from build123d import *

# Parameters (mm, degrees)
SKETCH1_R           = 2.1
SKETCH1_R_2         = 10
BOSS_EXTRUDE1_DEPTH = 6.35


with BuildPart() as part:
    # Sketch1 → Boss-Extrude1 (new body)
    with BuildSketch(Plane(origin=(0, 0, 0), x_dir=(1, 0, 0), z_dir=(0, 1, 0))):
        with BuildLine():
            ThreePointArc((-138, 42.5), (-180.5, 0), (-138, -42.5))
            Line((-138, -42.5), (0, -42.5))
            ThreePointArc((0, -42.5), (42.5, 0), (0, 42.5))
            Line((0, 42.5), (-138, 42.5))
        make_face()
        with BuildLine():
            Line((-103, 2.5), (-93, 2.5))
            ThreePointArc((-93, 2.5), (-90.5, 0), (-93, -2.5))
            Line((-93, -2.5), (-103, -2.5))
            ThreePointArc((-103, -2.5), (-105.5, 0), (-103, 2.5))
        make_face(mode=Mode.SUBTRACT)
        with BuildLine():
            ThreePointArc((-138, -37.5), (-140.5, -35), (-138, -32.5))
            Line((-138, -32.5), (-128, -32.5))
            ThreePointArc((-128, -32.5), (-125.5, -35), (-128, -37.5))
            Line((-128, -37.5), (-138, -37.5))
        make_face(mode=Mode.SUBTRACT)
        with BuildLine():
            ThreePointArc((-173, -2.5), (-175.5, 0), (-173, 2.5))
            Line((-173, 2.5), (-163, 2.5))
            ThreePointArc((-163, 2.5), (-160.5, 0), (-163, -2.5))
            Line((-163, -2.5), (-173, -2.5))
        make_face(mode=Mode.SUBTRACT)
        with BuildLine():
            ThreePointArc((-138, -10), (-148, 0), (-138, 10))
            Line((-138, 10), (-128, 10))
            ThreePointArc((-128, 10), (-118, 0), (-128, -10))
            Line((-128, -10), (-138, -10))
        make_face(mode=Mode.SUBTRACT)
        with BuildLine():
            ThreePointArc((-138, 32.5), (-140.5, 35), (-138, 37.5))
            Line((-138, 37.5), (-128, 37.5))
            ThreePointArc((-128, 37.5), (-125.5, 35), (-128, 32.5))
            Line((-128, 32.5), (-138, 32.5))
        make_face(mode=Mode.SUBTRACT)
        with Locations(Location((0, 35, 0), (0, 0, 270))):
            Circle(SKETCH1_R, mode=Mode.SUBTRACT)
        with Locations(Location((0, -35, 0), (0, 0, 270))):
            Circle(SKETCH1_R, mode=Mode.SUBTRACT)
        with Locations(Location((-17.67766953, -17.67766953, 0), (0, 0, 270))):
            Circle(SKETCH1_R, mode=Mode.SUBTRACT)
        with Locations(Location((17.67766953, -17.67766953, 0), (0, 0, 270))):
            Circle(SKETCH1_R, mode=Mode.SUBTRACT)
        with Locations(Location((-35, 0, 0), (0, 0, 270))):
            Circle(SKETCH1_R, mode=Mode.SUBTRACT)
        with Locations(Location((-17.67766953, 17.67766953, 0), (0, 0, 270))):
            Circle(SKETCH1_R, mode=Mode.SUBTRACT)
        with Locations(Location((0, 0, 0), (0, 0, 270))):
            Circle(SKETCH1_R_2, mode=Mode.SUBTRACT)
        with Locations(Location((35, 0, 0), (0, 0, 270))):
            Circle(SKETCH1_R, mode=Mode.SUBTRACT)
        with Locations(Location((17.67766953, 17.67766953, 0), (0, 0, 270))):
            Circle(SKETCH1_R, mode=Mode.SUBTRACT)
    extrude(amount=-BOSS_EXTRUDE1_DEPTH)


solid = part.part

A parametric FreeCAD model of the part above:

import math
import FreeCAD as App
import Part
import Sketcher

V = App.Vector

doc = App.newDocument("Part")
params = doc.addObject("Spreadsheet::Sheet", "Params")
for row, (alias, value) in enumerate([
    ("sketch1_diameter", "20 mm"),
    ("sketch1_diameter2", "4.2 mm"),
    ("sketch1_radius", "42.5 mm"),
    ("sketch1_radius2", "2.5 mm"),
    ("sketch1_width", "138 mm"),
    ("pad1_length", "6.35 mm"),
], start=1):
    params.set(f"A{row}", alias)
    params.set(f"B{row}", "=" + value)
    params.setAlias(f"B{row}", alias)

body = doc.addObject("PartDesign::Body", "Body")

sketch1 = body.newObject("Sketcher::SketchObject", "Sketch")
sketch1.AttachmentSupport = (doc.getObject("XZ_Plane"), [""])
sketch1.MapMode = "FlatFace"
sketch1.addGeometry(Part.ArcOfCircle(Part.Circle(V(-138, 0, 0), V(0, 0, 1), 42.5), math.radians(90), math.radians(270)), False)
sketch1.addGeometry(Part.LineSegment(V(-138, 42.5, 0), V(0, 42.5, 0)), False)
sketch1.addGeometry(Part.ArcOfCircle(Part.Circle(V(0, 0, 0), V(0, 0, 1), 42.5), math.radians(-90), math.radians(90)), False)
sketch1.addGeometry(Part.LineSegment(V(0, -42.5, 0), V(-138, -42.5, 0)), False)
sketch1.addGeometry(Part.LineSegment(V(-128, 37.5, 0), V(-138, 37.5, 0)), False)
sketch1.addGeometry(Part.ArcOfCircle(Part.Circle(V(-138, 35, 0), V(0, 0, 1), 2.5), math.radians(90), math.radians(270)), False)
sketch1.addGeometry(Part.LineSegment(V(-138, 32.5, 0), V(-128, 32.5, 0)), False)
sketch1.addGeometry(Part.ArcOfCircle(Part.Circle(V(-128, 35, 0), V(0, 0, 1), 2.5), math.radians(-90), math.radians(90)), False)
sketch1.addGeometry(Part.Circle(V(0, 35, 0), V(0, 0, 1), 2.1), False)
sketch1.addGeometry(Part.Circle(V(-17.67767, 17.67767, 0), V(0, 0, 1), 2.1), False)
sketch1.addGeometry(Part.Circle(V(17.67767, 17.67767, 0), V(0, 0, 1), 2.1), False)
sketch1.addGeometry(Part.LineSegment(V(-163, 2.5, 0), V(-173, 2.5, 0)), False)
sketch1.addGeometry(Part.ArcOfCircle(Part.Circle(V(-173, 0, 0), V(0, 0, 1), 2.5), math.radians(90), math.radians(270)), False)
sketch1.addGeometry(Part.LineSegment(V(-173, -2.5, 0), V(-163, -2.5, 0)), False)
sketch1.addGeometry(Part.ArcOfCircle(Part.Circle(V(-163, 0, 0), V(0, 0, 1), 2.5), math.radians(-90), math.radians(90)), False)
sketch1.addGeometry(Part.LineSegment(V(-128, 10, 0), V(-138, 10, 0)), False)
sketch1.addGeometry(Part.ArcOfCircle(Part.Circle(V(-138, 0, 0), V(0, 0, 1), 10), math.radians(90), math.radians(270)), False)
sketch1.addGeometry(Part.LineSegment(V(-138, -10, 0), V(-128, -10, 0)), False)
sketch1.addGeometry(Part.ArcOfCircle(Part.Circle(V(-128, 0, 0), V(0, 0, 1), 10), math.radians(-90), math.radians(90)), False)
sketch1.addGeometry(Part.ArcOfCircle(Part.Circle(V(-103, 0, 0), V(0, 0, 1), 2.5), math.radians(90), math.radians(270)), False)
sketch1.addGeometry(Part.LineSegment(V(-103, -2.5, 0), V(-93, -2.5, 0)), False)
sketch1.addGeometry(Part.ArcOfCircle(Part.Circle(V(-93, 0, 0), V(0, 0, 1), 2.5), math.radians(-90), math.radians(90)), False)
sketch1.addGeometry(Part.LineSegment(V(-93, 2.5, 0), V(-103, 2.5, 0)), False)
sketch1.addGeometry(Part.LineSegment(V(-128, -32.5, 0), V(-138, -32.5, 0)), False)
sketch1.addGeometry(Part.ArcOfCircle(Part.Circle(V(-138, -35, 0), V(0, 0, 1), 2.5), math.radians(90), math.radians(270)), False)
sketch1.addGeometry(Part.LineSegment(V(-138, -37.5, 0), V(-128, -37.5, 0)), False)
sketch1.addGeometry(Part.ArcOfCircle(Part.Circle(V(-128, -35, 0), V(0, 0, 1), 2.5), math.radians(-90), math.radians(90)), False)
sketch1.addGeometry(Part.Circle(V(-35, 0, 0), V(0, 0, 1), 2.1), False)
sketch1.addGeometry(Part.Circle(V(-17.67767, -17.67767, 0), V(0, 0, 1), 2.1), False)
sketch1.addGeometry(Part.Circle(V(0, 0, 0), V(0, 0, 1), 10), False)
sketch1.addGeometry(Part.Circle(V(35, 0, 0), V(0, 0, 1), 2.1), False)
sketch1.addGeometry(Part.Circle(V(17.67767, -17.67767, 0), V(0, 0, 1), 2.1), False)
sketch1.addGeometry(Part.Circle(V(0, -35, 0), V(0, 0, 1), 2.1), False)
sketch1.addConstraint(Sketcher.Constraint("Tangent", 0, 1, 1, 1))
sketch1.addConstraint(Sketcher.Constraint("Tangent", 1, 2, 2, 2))
sketch1.addConstraint(Sketcher.Constraint("Tangent", 2, 1, 3, 1))
sketch1.addConstraint(Sketcher.Constraint("Tangent", 3, 2, 0, 2))
sketch1.addConstraint(Sketcher.Constraint("Tangent", 4, 2, 5, 1))
sketch1.addConstraint(Sketcher.Constraint("Tangent", 5, 2, 6, 1))
sketch1.addConstraint(Sketcher.Constraint("Tangent", 6, 2, 7, 1))
sketch1.addConstraint(Sketcher.Constraint("Tangent", 7, 2, 4, 1))
sketch1.addConstraint(Sketcher.Constraint("Tangent", 11, 2, 12, 1))
sketch1.addConstraint(Sketcher.Constraint("Tangent", 12, 2, 13, 1))
sketch1.addConstraint(Sketcher.Constraint("Tangent", 13, 2, 14, 1))
sketch1.addConstraint(Sketcher.Constraint("Tangent", 14, 2, 11, 1))
sketch1.addConstraint(Sketcher.Constraint("Tangent", 15, 2, 16, 1))
sketch1.addConstraint(Sketcher.Constraint("Tangent", 16, 2, 17, 1))
sketch1.addConstraint(Sketcher.Constraint("Tangent", 17, 2, 18, 1))
sketch1.addConstraint(Sketcher.Constraint("Tangent", 18, 2, 15, 1))
sketch1.addConstraint(Sketcher.Constraint("Tangent", 19, 2, 20, 1))
sketch1.addConstraint(Sketcher.Constraint("Tangent", 20, 2, 21, 1))
sketch1.addConstraint(Sketcher.Constraint("Tangent", 21, 2, 22, 1))
sketch1.addConstraint(Sketcher.Constraint("Tangent", 22, 2, 19, 1))
sketch1.addConstraint(Sketcher.Constraint("Tangent", 23, 2, 24, 1))
sketch1.addConstraint(Sketcher.Constraint("Tangent", 24, 2, 25, 1))
sketch1.addConstraint(Sketcher.Constraint("Tangent", 25, 2, 26, 1))
sketch1.addConstraint(Sketcher.Constraint("Tangent", 26, 2, 23, 1))
sketch1.addConstraint(Sketcher.Constraint("Horizontal", 1))
sketch1.addConstraint(Sketcher.Constraint("Horizontal", 3))
sketch1.addConstraint(Sketcher.Constraint("Horizontal", 4))
sketch1.addConstraint(Sketcher.Constraint("Horizontal", 6))
sketch1.addConstraint(Sketcher.Constraint("Horizontal", 11))
sketch1.addConstraint(Sketcher.Constraint("Horizontal", 13))
sketch1.addConstraint(Sketcher.Constraint("Horizontal", 15))
sketch1.addConstraint(Sketcher.Constraint("Horizontal", 17))
sketch1.addConstraint(Sketcher.Constraint("Horizontal", 20))
sketch1.addConstraint(Sketcher.Constraint("Horizontal", 22))
sketch1.addConstraint(Sketcher.Constraint("Horizontal", 23))
sketch1.addConstraint(Sketcher.Constraint("Horizontal", 25))
sketch1.addConstraint(Sketcher.Constraint("Coincident", 2, 3, -1, 1))
sketch1.addConstraint(Sketcher.Constraint("Coincident", 29, 3, -1, 1))
sketch1.addConstraint(Sketcher.Constraint("Coincident", 16, 3, 0, 3))
sketch1.addConstraint(Sketcher.Constraint("Equal", 8, 9))
sketch1.addConstraint(Sketcher.Constraint("Equal", 9, 10))
sketch1.addConstraint(Sketcher.Constraint("Equal", 7, 12))
sketch1.addConstraint(Sketcher.Constraint("Equal", 14, 19))
sketch1.addConstraint(Sketcher.Constraint("Equal", 21, 24))
sketch1.addConstraint(Sketcher.Constraint("Equal", 10, 27))
sketch1.addConstraint(Sketcher.Constraint("Equal", 27, 28))
sketch1.addConstraint(Sketcher.Constraint("Equal", 18, 29))
sketch1.addConstraint(Sketcher.Constraint("Equal", 28, 30))
sketch1.addConstraint(Sketcher.Constraint("Equal", 30, 31))
sketch1.addConstraint(Sketcher.Constraint("Equal", 31, 32))
sketch1.addConstraint(Sketcher.Constraint("Symmetric", 10, 3, 28, 3, -1, 1))
sketch1.addConstraint(Sketcher.Constraint("Symmetric", 27, 3, 30, 3, -1, 1))
sketch1.addConstraint(Sketcher.Constraint("Symmetric", 9, 3, 31, 3, -1, 1))
sketch1.addConstraint(Sketcher.Constraint("Symmetric", 8, 3, 32, 3, -1, 1))
sketch1.addConstraint(Sketcher.Constraint("Symmetric", 9, 3, 10, 3, -2))
sketch1.addConstraint(Sketcher.Constraint("Symmetric", 5, 3, 24, 3, -1))
sketch1.addConstraint(Sketcher.Constraint("PointOnObject", 8, 3, -2))
sketch1.addConstraint(Sketcher.Constraint("PointOnObject", 12, 3, -1))
sketch1.addConstraint(Sketcher.Constraint("PointOnObject", 19, 3, -1))
sketch1.addConstraint(Sketcher.Constraint("PointOnObject", 27, 3, -1))
sketch1.addConstraint(Sketcher.Constraint("Horizontal", 7, 3, 8, 3))
sketch1.addConstraint(Sketcher.Constraint("Vertical", 0, 3, 5, 3))
sketch1.addConstraint(Sketcher.Constraint("Vertical", 7, 3, 18, 3))
sketch1.addConstraint(Sketcher.Constraint("Vertical", 18, 3, 26, 3))
sketch1.addConstraint(Sketcher.Constraint("Equal", 6, 11))
sketch1.addConstraint(Sketcher.Constraint("Equal", 17, 20))
sketch1.addConstraint(Sketcher.Constraint("Diameter", 29, 20.0))
sketch1.addConstraint(Sketcher.Constraint("Diameter", 8, 4.2))
sketch1.addConstraint(Sketcher.Constraint("Radius", 0, 42.5))
sketch1.addConstraint(Sketcher.Constraint("Radius", 5, 2.5))
sketch1.addConstraint(Sketcher.Constraint("DistanceX", 1, 1, 1, 2, 138.0))
sketch1.addConstraint(Sketcher.Constraint("DistanceX", 4, 2, 4, 1, 10.0))
sketch1.addConstraint(Sketcher.Constraint("DistanceY", -1, 1, 5, 3, 35.0))
sketch1.addConstraint(Sketcher.Constraint("DistanceX", 12, 3, -1, 1, 173.0))
sketch1.addConstraint(Sketcher.Constraint("DistanceX", 19, 3, -1, 1, 103.0))
sketch1.addConstraint(Sketcher.Constraint("DistanceX", 27, 3, -1, 1, 35.0))
sketch1.addConstraint(Sketcher.Constraint("DistanceX", 9, 3, -1, 1, 17.67767))
sketch1.addConstraint(Sketcher.Constraint("DistanceY", -1, 1, 9, 3, 17.67767))
sketch1.setExpression("Constraints[66]", "Params.sketch1_diameter")
sketch1.setExpression("Constraints[67]", "Params.sketch1_diameter2")
sketch1.setExpression("Constraints[68]", "Params.sketch1_radius")
sketch1.setExpression("Constraints[69]", "Params.sketch1_radius2")
sketch1.setExpression("Constraints[70]", "Params.sketch1_width")
pad1 = body.newObject("PartDesign::Pad", "Pad")
pad1.Profile = sketch1
pad1.setExpression("Length", "Params.pad1_length")

doc.recompute()
